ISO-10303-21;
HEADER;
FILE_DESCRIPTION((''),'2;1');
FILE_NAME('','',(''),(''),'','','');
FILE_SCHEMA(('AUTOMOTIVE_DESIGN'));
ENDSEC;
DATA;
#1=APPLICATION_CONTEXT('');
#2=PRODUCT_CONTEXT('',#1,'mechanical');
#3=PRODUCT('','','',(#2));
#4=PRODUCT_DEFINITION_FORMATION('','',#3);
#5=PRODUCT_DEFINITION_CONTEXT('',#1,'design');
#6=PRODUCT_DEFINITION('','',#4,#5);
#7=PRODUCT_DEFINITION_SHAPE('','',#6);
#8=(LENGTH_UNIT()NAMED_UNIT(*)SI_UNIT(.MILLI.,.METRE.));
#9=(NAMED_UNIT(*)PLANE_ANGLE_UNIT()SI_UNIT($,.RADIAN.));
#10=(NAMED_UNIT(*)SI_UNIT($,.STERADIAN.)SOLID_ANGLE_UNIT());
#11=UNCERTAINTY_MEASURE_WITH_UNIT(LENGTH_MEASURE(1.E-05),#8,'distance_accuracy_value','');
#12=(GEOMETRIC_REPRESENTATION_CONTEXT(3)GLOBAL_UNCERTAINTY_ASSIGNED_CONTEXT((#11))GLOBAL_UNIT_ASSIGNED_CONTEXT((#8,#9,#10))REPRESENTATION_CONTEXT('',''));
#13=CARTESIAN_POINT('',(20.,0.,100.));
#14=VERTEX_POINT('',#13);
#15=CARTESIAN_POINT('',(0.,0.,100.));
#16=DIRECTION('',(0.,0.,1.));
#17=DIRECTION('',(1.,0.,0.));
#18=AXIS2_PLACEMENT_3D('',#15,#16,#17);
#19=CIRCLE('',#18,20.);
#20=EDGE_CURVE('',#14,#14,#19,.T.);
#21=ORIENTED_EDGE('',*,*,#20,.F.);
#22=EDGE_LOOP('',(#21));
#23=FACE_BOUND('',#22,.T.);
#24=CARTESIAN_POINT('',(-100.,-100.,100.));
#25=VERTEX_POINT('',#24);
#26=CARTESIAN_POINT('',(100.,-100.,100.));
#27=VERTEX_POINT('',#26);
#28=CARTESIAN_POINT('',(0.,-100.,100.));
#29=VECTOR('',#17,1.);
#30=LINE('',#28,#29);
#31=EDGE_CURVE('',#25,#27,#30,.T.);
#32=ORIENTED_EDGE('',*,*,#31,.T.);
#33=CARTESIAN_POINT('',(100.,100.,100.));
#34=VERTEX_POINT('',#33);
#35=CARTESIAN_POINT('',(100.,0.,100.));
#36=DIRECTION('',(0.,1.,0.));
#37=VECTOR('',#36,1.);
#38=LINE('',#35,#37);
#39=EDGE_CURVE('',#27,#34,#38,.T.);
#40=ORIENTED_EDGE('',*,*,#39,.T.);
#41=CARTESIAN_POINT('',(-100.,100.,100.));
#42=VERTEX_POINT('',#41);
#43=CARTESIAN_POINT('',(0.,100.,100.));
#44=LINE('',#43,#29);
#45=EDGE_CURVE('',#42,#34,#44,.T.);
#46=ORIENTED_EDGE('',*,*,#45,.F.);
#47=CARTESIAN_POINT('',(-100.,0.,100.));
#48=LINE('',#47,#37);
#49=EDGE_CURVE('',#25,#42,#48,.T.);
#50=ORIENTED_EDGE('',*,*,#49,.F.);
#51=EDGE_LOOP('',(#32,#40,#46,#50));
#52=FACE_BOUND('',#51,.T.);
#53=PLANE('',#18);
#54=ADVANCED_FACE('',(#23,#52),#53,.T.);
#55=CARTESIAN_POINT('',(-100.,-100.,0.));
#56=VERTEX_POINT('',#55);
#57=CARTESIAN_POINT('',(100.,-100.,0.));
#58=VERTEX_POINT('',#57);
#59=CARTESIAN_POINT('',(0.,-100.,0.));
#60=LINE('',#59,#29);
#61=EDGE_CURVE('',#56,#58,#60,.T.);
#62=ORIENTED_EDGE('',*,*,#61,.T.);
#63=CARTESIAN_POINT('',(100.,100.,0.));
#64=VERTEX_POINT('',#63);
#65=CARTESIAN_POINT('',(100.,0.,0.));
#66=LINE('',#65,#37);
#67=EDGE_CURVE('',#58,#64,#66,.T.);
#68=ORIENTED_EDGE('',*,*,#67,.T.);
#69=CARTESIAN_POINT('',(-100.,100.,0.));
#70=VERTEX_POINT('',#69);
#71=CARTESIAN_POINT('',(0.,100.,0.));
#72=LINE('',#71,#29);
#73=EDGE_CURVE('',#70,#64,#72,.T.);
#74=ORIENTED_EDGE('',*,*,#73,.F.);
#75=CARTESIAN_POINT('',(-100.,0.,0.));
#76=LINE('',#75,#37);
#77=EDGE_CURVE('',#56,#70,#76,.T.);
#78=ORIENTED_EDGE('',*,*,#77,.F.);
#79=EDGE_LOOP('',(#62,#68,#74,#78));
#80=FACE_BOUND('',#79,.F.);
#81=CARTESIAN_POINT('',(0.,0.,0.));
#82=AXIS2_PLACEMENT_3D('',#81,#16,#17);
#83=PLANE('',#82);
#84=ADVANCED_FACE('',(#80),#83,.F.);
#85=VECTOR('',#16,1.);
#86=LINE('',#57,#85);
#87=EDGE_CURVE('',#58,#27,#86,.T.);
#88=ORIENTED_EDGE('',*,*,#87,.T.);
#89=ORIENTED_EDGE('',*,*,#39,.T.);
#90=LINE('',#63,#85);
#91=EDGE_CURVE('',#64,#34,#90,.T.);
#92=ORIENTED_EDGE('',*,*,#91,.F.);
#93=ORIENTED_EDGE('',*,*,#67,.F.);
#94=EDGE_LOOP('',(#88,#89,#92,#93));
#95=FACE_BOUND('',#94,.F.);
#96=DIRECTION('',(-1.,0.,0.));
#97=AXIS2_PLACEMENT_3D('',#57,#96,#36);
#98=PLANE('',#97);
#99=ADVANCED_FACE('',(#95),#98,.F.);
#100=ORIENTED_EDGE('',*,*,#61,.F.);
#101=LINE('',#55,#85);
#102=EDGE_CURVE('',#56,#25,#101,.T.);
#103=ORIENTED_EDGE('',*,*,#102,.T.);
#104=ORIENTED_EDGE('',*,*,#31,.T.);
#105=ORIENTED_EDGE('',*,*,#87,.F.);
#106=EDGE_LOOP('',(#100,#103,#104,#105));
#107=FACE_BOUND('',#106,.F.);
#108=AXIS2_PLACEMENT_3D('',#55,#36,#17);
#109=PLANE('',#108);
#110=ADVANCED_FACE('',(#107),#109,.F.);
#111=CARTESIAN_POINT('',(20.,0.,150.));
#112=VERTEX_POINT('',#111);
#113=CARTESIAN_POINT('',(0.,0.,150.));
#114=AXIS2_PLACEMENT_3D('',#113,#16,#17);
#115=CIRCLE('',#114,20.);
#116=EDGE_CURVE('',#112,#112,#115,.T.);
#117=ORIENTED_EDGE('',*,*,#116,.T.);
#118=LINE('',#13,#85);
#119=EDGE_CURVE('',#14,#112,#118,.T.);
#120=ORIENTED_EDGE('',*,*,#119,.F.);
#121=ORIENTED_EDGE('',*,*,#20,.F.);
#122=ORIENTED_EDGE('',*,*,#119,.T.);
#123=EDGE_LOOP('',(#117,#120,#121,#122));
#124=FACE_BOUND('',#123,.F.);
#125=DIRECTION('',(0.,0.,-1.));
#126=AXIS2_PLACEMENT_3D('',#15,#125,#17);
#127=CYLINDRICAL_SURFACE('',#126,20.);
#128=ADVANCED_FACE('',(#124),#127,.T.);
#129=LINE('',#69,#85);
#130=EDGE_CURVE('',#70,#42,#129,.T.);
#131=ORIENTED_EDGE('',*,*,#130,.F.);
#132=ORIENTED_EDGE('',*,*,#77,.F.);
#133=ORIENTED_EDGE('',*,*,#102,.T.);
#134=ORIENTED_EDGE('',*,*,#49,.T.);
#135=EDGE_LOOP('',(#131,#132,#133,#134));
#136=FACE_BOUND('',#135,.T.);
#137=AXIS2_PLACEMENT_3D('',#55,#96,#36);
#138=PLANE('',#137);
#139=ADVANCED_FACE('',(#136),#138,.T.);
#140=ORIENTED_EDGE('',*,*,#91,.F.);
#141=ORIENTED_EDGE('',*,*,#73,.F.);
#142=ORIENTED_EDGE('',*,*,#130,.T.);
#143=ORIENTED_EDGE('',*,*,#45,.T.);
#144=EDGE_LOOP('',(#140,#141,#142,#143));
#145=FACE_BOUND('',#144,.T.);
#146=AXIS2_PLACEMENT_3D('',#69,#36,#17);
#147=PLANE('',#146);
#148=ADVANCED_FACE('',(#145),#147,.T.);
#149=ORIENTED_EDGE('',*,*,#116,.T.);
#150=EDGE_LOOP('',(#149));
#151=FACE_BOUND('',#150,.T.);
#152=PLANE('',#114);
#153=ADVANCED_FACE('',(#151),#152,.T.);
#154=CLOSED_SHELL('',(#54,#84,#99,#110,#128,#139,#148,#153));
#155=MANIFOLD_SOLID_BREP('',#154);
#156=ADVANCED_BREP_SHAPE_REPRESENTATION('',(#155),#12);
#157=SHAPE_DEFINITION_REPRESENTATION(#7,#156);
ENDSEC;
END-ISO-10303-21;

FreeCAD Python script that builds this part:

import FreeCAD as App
import Part
import Sketcher
from FreeCAD import Vector

doc = App.newDocument("Part")
body = doc.addObject("PartDesign::Body", "Body")

# Sketch on XY plane
sketch1 = body.newObject("Sketcher::SketchObject", "Sketch")
sketch1.AttachmentSupport = (doc.getObject("XY_Plane"), [""])
sketch1.MapMode = "FlatFace"
sketch1.addGeometry([
    Part.LineSegment(Vector(-100, 100, 0), Vector(-100, -100, 0)),
    Part.LineSegment(Vector(-100, -100, 0), Vector(100, -100, 0)),
    Part.LineSegment(Vector(100, -100, 0), Vector(100, 100, 0)),
    Part.LineSegment(Vector(100, 100, 0), Vector(-100, 100, 0)),
], False)
sketch1.addConstraint([
    Sketcher.Constraint("Coincident", 0, 2, 1, 1),
    Sketcher.Constraint("Coincident", 1, 2, 2, 1),
    Sketcher.Constraint("Coincident", 2, 2, 3, 1),
    Sketcher.Constraint("Coincident", 3, 2, 0, 1),
    Sketcher.Constraint("Vertical", 0),
    Sketcher.Constraint("Horizontal", 1),
    Sketcher.Constraint("Vertical", 2),
    Sketcher.Constraint("Horizontal", 3),
    Sketcher.Constraint("Symmetric", 0, 2, 2, 2, -1, 1),
    Sketcher.Constraint("Equal", 3, 0),
    Sketcher.Constraint("DistanceX", 1, 1, 1, 2, 200.0),
])
pad1 = body.newObject("PartDesign::Pad", "Pad")
pad1.Profile = sketch1
pad1.Length = 100

# Sketch on XY plane
sketch2 = body.newObject("Sketcher::SketchObject", "Sketch001")
sketch2.AttachmentSupport = (doc.getObject("XY_Plane"), [""])
sketch2.MapMode = "FlatFace"
sketch2.AttachmentOffset = App.Placement(Vector(0, 0, 100), App.Rotation())
sketch2.addGeometry(Part.Circle(Vector(0, 0, 0), Vector(0, 0, 1), 20), False)
sketch2.addConstraint([
    Sketcher.Constraint("Coincident", 0, 3, -1, 1),
    Sketcher.Constraint("Diameter", 0, 40.0),
])
pad2 = body.newObject("PartDesign::Pad", "Pad001")
pad2.Profile = sketch2
pad2.Length = 50

doc.recompute()
